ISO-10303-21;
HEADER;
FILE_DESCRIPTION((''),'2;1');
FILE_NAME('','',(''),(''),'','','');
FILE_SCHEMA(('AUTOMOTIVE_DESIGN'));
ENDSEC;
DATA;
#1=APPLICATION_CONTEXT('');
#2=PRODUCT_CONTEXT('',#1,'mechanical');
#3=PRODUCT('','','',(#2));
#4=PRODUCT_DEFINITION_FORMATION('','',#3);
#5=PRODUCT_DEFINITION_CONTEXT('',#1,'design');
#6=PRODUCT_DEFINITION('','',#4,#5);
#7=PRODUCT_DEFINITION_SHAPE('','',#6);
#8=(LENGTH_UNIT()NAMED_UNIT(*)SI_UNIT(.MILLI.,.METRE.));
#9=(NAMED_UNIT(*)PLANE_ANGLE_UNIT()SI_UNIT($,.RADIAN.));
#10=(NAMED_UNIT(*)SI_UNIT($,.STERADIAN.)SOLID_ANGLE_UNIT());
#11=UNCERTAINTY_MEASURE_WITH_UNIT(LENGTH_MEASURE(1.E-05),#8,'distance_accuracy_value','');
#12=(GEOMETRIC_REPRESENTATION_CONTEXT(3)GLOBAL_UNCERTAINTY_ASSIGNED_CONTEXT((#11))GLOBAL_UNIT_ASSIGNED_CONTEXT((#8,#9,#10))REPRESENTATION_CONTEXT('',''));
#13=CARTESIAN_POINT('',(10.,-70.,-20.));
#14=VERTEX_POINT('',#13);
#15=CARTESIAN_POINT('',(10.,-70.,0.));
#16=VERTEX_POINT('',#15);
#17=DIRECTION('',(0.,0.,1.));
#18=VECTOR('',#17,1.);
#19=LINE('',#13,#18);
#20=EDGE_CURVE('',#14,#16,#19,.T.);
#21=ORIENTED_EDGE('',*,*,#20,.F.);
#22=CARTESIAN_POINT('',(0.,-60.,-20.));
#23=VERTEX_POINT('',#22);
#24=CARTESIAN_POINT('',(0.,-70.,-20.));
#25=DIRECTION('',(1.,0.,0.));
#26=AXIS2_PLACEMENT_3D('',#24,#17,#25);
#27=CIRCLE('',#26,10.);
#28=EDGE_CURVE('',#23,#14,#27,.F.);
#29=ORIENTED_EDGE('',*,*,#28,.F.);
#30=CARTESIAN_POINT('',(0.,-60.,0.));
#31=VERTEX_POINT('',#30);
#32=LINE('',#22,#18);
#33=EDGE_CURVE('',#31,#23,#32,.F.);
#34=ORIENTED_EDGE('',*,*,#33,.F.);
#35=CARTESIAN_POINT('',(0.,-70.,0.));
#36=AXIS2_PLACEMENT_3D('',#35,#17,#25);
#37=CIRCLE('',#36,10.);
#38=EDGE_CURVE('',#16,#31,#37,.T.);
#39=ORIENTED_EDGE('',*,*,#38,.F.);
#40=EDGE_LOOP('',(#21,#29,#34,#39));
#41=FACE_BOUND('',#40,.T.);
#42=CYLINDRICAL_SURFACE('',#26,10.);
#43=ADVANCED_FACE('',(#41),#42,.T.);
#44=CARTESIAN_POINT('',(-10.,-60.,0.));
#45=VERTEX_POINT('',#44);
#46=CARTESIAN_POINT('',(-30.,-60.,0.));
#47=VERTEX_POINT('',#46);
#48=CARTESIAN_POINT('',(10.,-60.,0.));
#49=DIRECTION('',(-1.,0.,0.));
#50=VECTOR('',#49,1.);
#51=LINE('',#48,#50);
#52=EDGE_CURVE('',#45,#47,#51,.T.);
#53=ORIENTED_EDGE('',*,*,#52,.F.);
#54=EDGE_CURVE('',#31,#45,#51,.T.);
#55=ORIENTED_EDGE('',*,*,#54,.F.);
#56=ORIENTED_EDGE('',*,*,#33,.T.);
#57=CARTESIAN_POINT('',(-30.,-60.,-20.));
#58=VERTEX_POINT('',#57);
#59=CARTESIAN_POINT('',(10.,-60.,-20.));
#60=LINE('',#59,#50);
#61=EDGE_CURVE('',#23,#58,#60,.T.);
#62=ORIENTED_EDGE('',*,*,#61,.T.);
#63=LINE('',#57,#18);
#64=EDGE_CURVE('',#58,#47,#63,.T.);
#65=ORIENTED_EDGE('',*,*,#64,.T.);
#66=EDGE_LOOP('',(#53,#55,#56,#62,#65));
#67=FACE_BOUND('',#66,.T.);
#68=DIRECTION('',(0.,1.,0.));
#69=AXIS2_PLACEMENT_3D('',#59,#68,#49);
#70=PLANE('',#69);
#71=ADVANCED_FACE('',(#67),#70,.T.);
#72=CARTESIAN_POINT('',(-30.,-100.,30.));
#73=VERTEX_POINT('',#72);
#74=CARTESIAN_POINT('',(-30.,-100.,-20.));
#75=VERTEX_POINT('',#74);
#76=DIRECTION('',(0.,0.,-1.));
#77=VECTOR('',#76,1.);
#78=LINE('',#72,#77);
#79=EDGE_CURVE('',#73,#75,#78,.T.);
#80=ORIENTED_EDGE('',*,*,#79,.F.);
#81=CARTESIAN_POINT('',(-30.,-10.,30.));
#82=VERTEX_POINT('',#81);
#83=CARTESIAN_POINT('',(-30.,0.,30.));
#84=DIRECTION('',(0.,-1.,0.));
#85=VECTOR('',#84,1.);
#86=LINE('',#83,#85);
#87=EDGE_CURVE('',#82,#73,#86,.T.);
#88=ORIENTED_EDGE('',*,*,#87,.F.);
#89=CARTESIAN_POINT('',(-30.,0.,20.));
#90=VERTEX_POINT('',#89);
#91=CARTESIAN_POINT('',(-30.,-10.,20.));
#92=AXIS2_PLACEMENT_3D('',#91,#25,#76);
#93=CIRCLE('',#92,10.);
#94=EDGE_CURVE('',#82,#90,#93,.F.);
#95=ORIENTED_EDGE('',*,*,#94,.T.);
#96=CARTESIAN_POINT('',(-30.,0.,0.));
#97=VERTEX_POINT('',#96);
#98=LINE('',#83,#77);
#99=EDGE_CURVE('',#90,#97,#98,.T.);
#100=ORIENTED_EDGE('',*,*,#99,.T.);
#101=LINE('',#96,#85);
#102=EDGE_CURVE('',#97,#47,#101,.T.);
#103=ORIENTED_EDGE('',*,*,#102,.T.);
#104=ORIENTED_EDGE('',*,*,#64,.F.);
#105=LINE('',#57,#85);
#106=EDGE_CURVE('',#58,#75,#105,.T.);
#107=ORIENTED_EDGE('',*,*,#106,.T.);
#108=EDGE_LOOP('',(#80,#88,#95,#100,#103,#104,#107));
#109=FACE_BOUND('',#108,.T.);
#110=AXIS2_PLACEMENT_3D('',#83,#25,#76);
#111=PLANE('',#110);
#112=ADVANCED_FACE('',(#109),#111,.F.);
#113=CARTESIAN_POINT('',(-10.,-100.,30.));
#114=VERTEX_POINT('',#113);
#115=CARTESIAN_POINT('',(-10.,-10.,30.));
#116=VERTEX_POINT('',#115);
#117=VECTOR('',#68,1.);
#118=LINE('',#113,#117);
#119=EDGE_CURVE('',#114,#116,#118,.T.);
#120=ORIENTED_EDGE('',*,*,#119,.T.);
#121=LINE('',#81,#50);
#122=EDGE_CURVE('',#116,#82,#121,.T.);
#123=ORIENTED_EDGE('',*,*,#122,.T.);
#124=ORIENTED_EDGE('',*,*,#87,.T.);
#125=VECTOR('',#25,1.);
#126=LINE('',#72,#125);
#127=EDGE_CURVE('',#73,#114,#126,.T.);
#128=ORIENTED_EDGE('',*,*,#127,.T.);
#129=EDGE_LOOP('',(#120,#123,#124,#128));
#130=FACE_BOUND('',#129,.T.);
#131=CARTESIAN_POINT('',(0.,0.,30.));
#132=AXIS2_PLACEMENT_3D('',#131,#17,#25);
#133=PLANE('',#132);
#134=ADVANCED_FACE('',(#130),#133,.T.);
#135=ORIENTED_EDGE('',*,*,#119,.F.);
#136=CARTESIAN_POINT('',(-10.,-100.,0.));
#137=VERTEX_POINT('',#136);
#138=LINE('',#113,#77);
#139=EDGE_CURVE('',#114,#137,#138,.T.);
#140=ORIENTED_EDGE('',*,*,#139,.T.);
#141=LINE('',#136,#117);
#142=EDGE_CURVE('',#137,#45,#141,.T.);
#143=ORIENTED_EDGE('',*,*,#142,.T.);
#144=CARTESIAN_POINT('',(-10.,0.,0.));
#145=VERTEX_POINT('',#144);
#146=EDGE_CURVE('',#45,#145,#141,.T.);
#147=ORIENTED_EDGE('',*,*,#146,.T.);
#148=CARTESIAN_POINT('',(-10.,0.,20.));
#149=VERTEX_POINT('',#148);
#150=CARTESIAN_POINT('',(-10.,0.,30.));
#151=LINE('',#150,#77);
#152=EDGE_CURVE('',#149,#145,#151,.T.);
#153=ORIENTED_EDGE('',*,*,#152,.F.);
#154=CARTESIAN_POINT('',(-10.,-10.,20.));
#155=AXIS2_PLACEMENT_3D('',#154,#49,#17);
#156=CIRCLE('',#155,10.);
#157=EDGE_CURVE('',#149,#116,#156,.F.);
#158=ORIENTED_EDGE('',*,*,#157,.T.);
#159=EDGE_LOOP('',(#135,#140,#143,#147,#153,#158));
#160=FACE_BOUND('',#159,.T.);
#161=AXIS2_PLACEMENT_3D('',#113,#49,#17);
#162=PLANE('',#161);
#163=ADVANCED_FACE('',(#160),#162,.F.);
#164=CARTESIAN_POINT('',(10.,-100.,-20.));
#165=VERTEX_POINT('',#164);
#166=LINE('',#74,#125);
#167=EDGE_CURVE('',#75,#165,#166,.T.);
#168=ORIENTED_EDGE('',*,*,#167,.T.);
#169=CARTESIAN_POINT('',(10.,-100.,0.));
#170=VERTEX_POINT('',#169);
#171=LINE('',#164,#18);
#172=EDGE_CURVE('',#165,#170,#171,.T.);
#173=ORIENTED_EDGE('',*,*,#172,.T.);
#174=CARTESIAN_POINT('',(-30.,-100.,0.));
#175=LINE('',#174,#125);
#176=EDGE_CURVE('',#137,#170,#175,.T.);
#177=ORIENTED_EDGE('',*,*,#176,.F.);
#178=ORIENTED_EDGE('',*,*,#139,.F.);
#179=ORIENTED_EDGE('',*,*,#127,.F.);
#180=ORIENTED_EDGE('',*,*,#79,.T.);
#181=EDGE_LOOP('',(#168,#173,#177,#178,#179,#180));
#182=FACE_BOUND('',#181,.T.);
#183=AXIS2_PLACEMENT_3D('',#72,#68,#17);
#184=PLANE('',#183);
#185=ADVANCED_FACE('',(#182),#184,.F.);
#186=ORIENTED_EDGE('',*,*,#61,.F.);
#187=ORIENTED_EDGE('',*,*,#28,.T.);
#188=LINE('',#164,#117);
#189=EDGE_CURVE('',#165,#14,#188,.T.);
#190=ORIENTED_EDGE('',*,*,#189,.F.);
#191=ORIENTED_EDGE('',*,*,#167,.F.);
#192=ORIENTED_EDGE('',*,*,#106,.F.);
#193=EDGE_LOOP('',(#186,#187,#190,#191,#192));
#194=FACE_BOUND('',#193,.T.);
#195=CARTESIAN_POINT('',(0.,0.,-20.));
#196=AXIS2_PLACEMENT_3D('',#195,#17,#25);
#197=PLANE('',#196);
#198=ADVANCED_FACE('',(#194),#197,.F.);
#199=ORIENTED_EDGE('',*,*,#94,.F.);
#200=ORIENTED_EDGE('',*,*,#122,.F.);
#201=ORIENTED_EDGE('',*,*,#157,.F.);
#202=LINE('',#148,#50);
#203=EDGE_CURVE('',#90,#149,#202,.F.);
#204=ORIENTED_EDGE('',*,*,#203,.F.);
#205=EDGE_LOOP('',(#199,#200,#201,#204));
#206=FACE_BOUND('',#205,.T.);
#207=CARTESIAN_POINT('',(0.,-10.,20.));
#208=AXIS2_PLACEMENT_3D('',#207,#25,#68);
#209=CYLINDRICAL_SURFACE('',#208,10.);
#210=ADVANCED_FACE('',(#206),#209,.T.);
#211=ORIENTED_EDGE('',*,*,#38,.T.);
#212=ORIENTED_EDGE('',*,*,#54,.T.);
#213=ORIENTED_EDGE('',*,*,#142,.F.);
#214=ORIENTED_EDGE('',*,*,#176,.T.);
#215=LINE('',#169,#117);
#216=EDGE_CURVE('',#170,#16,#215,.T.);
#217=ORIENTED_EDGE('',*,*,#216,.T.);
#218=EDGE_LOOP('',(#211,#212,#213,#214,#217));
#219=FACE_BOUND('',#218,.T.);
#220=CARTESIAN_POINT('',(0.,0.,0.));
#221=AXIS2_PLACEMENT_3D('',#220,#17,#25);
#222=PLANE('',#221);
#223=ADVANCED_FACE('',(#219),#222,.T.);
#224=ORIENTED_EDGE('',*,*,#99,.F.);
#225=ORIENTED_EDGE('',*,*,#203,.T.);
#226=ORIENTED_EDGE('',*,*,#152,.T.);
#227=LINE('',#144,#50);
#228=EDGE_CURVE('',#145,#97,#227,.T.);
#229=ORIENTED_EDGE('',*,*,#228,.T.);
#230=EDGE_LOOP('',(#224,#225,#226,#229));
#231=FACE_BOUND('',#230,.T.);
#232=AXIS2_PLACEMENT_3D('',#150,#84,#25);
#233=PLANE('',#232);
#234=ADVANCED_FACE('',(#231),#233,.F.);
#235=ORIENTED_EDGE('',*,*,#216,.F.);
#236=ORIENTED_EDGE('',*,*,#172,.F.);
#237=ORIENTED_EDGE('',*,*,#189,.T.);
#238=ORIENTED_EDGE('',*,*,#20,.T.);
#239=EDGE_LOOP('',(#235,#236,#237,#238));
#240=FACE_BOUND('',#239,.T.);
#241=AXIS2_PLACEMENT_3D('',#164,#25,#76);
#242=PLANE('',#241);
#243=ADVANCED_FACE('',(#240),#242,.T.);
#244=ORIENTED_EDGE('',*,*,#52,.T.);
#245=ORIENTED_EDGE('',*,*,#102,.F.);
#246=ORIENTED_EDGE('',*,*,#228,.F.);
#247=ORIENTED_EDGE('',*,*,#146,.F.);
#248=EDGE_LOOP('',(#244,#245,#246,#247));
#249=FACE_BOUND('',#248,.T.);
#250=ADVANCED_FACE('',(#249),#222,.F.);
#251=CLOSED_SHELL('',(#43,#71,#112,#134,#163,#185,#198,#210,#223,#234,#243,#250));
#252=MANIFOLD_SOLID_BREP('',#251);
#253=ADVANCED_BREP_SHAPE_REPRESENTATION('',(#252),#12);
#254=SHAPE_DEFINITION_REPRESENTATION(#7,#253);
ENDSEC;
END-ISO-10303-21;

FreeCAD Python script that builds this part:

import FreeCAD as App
import Part
import Sketcher


def edges_at(feature, points):
    """Names of the edges that pass closest to the given points."""
    edges = feature.Shape.Edges
    near = lambda p: min(range(len(edges)), key=lambda i: edges[i].distToShape(Part.Vertex(*p))[0])
    return sorted({f"Edge{near(p) + 1}" for p in points})


def add_polygon(sketch, points):
    """Adds a closed chain of lines whose ends are joined by coincident constraints."""
    first, n = sketch.GeometryCount, len(points)
    for a, b in zip(points, points[1:] + points[:1]):
        sketch.addGeometry(Part.LineSegment(App.Vector(*a, 0), App.Vector(*b, 0)), False)
    for i in range(n):
        sketch.addConstraint(Sketcher.Constraint("Coincident", first + i, 2, first + (i + 1) % n, 1))

doc = App.newDocument("Part")
body = doc.addObject("PartDesign::Body", "Body")

# Sketch on XY plane
sketch1 = body.newObject("Sketcher::SketchObject", "Sketch")
sketch1.AttachmentSupport = (doc.getObject("XY_Plane"), [""])
sketch1.MapMode = "FlatFace"
add_polygon(sketch1, [(-30, 0), (-30, -100), (-10, -100), (-10, 0)])  # lines 0-3
sketch1.addConstraint([
    Sketcher.Constraint("Vertical", 0),
    Sketcher.Constraint("Horizontal", 1),
    Sketcher.Constraint("Vertical", 2),
    Sketcher.Constraint("Horizontal", 3),
    Sketcher.Constraint("PointOnObject", 2, 2, -1),
    Sketcher.Constraint("DistanceX", 1, 1, 1, 2, 20.0),
    Sketcher.Constraint("DistanceY", 0, 2, 0, 1, 100.0),
    Sketcher.Constraint("DistanceX", 0, 2, -1, 1, 30.0),
])
pad1 = body.newObject("PartDesign::Pad", "Pad")
pad1.Profile = sketch1
pad1.Length = 30

# Sketch on XY plane
sketch2 = body.newObject("Sketcher::SketchObject", "Sketch001")
sketch2.AttachmentSupport = (doc.getObject("XY_Plane"), [""])
sketch2.MapMode = "FlatFace"
add_polygon(sketch2, [(-30, -60), (-30, -100), (10, -100), (10, -60)])  # lines 0-3
sketch2.addConstraint([
    Sketcher.Constraint("Vertical", 0),
    Sketcher.Constraint("Horizontal", 1),
    Sketcher.Constraint("Vertical", 2),
    Sketcher.Constraint("Horizontal", 3),
    Sketcher.Constraint("Equal", 3, 0),
    Sketcher.Constraint("DistanceX", 1, 1, 1, 2, 40.0),
    Sketcher.Constraint("DistanceX", 0, 2, -1, 1, 30.0),
    Sketcher.Constraint("DistanceY", 0, 2, -1, 1, 100.0),
])
pad2 = body.newObject("PartDesign::Pad", "Pad001")
pad2.Profile = sketch2
pad2.Length = 20
pad2.Reversed = True
doc.recompute()

fillet = body.newObject("PartDesign::Fillet", "Fillet")
fillet.Base = (pad2, edges_at(pad2, [(10, -60, -10), (-20, 0, 30)]))
fillet.Radius = 10

doc.recompute()
